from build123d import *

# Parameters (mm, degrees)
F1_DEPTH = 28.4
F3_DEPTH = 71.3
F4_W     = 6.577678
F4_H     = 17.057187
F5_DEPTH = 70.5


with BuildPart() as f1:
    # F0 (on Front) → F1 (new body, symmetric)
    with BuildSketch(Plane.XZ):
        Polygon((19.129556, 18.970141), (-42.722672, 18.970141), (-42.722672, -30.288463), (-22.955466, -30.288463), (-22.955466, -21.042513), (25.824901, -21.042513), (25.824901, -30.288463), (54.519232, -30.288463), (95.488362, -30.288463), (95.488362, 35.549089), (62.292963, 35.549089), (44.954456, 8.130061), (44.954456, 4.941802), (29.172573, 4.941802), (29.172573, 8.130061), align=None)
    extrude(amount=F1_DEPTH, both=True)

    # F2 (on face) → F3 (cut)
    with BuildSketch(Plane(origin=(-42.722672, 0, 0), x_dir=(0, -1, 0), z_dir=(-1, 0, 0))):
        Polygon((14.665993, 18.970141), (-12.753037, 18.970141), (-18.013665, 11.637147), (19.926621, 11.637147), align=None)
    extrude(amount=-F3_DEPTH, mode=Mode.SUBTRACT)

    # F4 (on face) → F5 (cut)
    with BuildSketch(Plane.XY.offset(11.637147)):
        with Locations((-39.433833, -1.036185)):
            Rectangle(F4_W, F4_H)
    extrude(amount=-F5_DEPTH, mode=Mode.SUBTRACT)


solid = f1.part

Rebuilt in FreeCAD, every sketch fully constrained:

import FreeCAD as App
import Part
import Sketcher

doc = App.newDocument("Part")
body = doc.addObject("PartDesign::Body", "Body")

# Sketch on XZ plane
sketch1 = body.newObject("Sketcher::SketchObject", "Sketch")
sketch1.AttachmentSupport = (doc.getObject("XZ_Plane"), [""])
sketch1.MapMode = "FlatFace"
sketch1.addGeometry([
    Part.LineSegment(App.Vector(19.1, 19, 0), App.Vector(-42.7, 19, 0)),  # 0
    Part.LineSegment(App.Vector(-42.7, 19, 0), App.Vector(-42.7, -30.3, 0)),  # 1
    Part.LineSegment(App.Vector(-42.7, -30.3, 0), App.Vector(-23, -30.3, 0)),  # 2
    Part.LineSegment(App.Vector(-23, -30.3, 0), App.Vector(-23, -21, 0)),  # 3
    Part.LineSegment(App.Vector(-23, -21, 0), App.Vector(25.8, -21, 0)),  # 4
    Part.LineSegment(App.Vector(25.8, -21, 0), App.Vector(25.8, -30.3, 0)),  # 5
    Part.LineSegment(App.Vector(25.8, -30.3, 0), App.Vector(95.5, -30.3, 0)),  # 6
    Part.LineSegment(App.Vector(95.5, -30.3, 0), App.Vector(95.5, 35.5, 0)),  # 7
    Part.LineSegment(App.Vector(95.5, 35.5, 0), App.Vector(62.3, 35.5, 0)),  # 8
    Part.LineSegment(App.Vector(62.3, 35.5, 0), App.Vector(45, 8.1, 0)),  # 9
    Part.LineSegment(App.Vector(45, 8.1, 0), App.Vector(45, 4.9, 0)),  # 10
    Part.LineSegment(App.Vector(45, 4.9, 0), App.Vector(29.2, 4.9, 0)),  # 11
    Part.LineSegment(App.Vector(29.2, 4.9, 0), App.Vector(29.2, 8.1, 0)),  # 12
    Part.LineSegment(App.Vector(29.2, 8.1, 0), App.Vector(19.1, 19, 0)),  # 13
], False)
sketch1.addConstraint([
    Sketcher.Constraint("Coincident", 0, 2, 1, 1),
    Sketcher.Constraint("Coincident", 1, 2, 2, 1),
    Sketcher.Constraint("Coincident", 2, 2, 3, 1),
    Sketcher.Constraint("Coincident", 3, 2, 4, 1),
    Sketcher.Constraint("Coincident", 4, 2, 5, 1),
    Sketcher.Constraint("Coincident", 5, 2, 6, 1),
    Sketcher.Constraint("Coincident", 6, 2, 7, 1),
    Sketcher.Constraint("Coincident", 7, 2, 8, 1),
    Sketcher.Constraint("Coincident", 8, 2, 9, 1),
    Sketcher.Constraint("Coincident", 9, 2, 10, 1),
    Sketcher.Constraint("Coincident", 10, 2, 11, 1),
    Sketcher.Constraint("Coincident", 11, 2, 12, 1),
    Sketcher.Constraint("Coincident", 12, 2, 13, 1),
    Sketcher.Constraint("Coincident", 13, 2, 0, 1),
    Sketcher.Constraint("Horizontal", 0),
    Sketcher.Constraint("Vertical", 1),
    Sketcher.Constraint("Horizontal", 2),
    Sketcher.Constraint("Vertical", 3),
    Sketcher.Constraint("Horizontal", 4),
    Sketcher.Constraint("Vertical", 5),
    Sketcher.Constraint("Horizontal", 6),
    Sketcher.Constraint("Vertical", 7),
    Sketcher.Constraint("Horizontal", 8),
    Sketcher.Constraint("Vertical", 10),
    Sketcher.Constraint("Horizontal", 11),
    Sketcher.Constraint("Vertical", 12),
    Sketcher.Constraint("Horizontal", 2, 2, 5, 2),
    Sketcher.Constraint("Horizontal", 9, 2, 12, 2),
    Sketcher.Constraint("DistanceX", 8, 2, 8, 1, 33.195399),
    Sketcher.Constraint("DistanceX", 0, 2, 0, 1, 61.852228),
    Sketcher.Constraint("DistanceX", 6, 1, 6, 2, 69.663461),
    Sketcher.Constraint("DistanceY", 3, 1, 3, 2, 9.24595),
    Sketcher.Constraint("DistanceY", 10, 2, 10, 1, 3.188259),
    Sketcher.Constraint("DistanceX", -1, 1, 4, 2, 25.824901),
    Sketcher.Constraint("DistanceX", 13, 2, 9, 2, 25.8249),
    Sketcher.Constraint("Distance", 9, 32.44113),
    Sketcher.Constraint("Distance", 13, 14.777331),
    Sketcher.Constraint("DistanceX", 2, 1, 2, 2, 19.767206),
    Sketcher.Constraint("DistanceX", 4, 1, 4, 2, 48.780367),
    Sketcher.Constraint("DistanceX", 11, 2, 11, 1, 15.781883),
    Sketcher.Constraint("DistanceY", 1, 2, 1, 1, 49.258604),
    Sketcher.Constraint("DistanceY", -1, 1, 0, 2, 18.970141),
])
pad1 = body.newObject("PartDesign::Pad", "Pad")
pad1.Profile = sketch1
pad1.Length = 56.8
pad1.Midplane = True

# Sketch on YZ plane
sketch2 = body.newObject("Sketcher::SketchObject", "Sketch001")
sketch2.AttachmentSupport = (doc.getObject("YZ_Plane"), [""])
sketch2.MapMode = "FlatFace"
sketch2.AttachmentOffset = App.Placement(App.Vector(0, 0, -42.722672), App.Rotation())
sketch2.addGeometry([
    Part.LineSegment(App.Vector(-15, 19, 0), App.Vector(13, 19, 0)),
    Part.LineSegment(App.Vector(13, 19, 0), App.Vector(18, 12, 0)),
    Part.LineSegment(App.Vector(18, 12, 0), App.Vector(-20, 12, 0)),
    Part.LineSegment(App.Vector(-20, 12, 0), App.Vector(-15, 19, 0)),
], False)
sketch2.addConstraint([
    Sketcher.Constraint("Coincident", 0, 2, 1, 1),
    Sketcher.Constraint("Coincident", 1, 2, 2, 1),
    Sketcher.Constraint("Coincident", 2, 2, 3, 1),
    Sketcher.Constraint("Coincident", 3, 2, 0, 1),
    Sketcher.Constraint("Horizontal", 0),
    Sketcher.Constraint("Horizontal", 2),
    Sketcher.Constraint("Equal", 1, 3),
    Sketcher.Constraint("Distance", 1, 9.0248),
    Sketcher.Constraint("DistanceX", 0, 1, 0, 2, 27.41903),
    Sketcher.Constraint("DistanceX", 2, 2, 2, 1, 37.940286),
    Sketcher.Constraint("DistanceY", -1, 1, 0, 2, 18.970141),
    Sketcher.Constraint("DistanceX", 2, 2, -1, 1, 19.926621),
])
pocket1 = body.newObject("PartDesign::Pocket", "Pocket")
pocket1.Profile = sketch2
pocket1.Length = 71.3
pocket1.Reversed = True

# Sketch on XY plane
sketch3 = body.newObject("Sketcher::SketchObject", "Sketch002")
sketch3.AttachmentSupport = (doc.getObject("XY_Plane"), [""])
sketch3.MapMode = "FlatFace"
sketch3.AttachmentOffset = App.Placement(App.Vector(0, 0, 11.637147), App.Rotation())
sketch3.addGeometry([
    Part.LineSegment(App.Vector(-43, 7, 0), App.Vector(-43, -10, 0)),
    Part.LineSegment(App.Vector(-43, -10, 0), App.Vector(-36, -10, 0)),
    Part.LineSegment(App.Vector(-36, -10, 0), App.Vector(-36, 7, 0)),
    Part.LineSegment(App.Vector(-36, 7, 0), App.Vector(-43, 7, 0)),
], False)
sketch3.addConstraint([
    Sketcher.Constraint("Coincident", 0, 2, 1, 1),
    Sketcher.Constraint("Coincident", 1, 2, 2, 1),
    Sketcher.Constraint("Coincident", 2, 2, 3, 1),
    Sketcher.Constraint("Coincident", 3, 2, 0, 1),
    Sketcher.Constraint("Vertical", 0),
    Sketcher.Constraint("Horizontal", 1),
    Sketcher.Constraint("Vertical", 2),
    Sketcher.Constraint("Horizontal", 3),
    Sketcher.Constraint("DistanceX", 1, 1, 1, 2, 6.577678),
    Sketcher.Constraint("DistanceY", 0, 2, 0, 1, 17.057187),
    Sketcher.Constraint("DistanceY", 0, 2, -1, 1, 9.564778),
    Sketcher.Constraint("DistanceX", 0, 2, -1, 1, 42.722672),
])
pocket2 = body.newObject("PartDesign::Pocket", "Pocket001")
pocket2.Profile = sketch3
pocket2.Length = 70.5

doc.recompute()
